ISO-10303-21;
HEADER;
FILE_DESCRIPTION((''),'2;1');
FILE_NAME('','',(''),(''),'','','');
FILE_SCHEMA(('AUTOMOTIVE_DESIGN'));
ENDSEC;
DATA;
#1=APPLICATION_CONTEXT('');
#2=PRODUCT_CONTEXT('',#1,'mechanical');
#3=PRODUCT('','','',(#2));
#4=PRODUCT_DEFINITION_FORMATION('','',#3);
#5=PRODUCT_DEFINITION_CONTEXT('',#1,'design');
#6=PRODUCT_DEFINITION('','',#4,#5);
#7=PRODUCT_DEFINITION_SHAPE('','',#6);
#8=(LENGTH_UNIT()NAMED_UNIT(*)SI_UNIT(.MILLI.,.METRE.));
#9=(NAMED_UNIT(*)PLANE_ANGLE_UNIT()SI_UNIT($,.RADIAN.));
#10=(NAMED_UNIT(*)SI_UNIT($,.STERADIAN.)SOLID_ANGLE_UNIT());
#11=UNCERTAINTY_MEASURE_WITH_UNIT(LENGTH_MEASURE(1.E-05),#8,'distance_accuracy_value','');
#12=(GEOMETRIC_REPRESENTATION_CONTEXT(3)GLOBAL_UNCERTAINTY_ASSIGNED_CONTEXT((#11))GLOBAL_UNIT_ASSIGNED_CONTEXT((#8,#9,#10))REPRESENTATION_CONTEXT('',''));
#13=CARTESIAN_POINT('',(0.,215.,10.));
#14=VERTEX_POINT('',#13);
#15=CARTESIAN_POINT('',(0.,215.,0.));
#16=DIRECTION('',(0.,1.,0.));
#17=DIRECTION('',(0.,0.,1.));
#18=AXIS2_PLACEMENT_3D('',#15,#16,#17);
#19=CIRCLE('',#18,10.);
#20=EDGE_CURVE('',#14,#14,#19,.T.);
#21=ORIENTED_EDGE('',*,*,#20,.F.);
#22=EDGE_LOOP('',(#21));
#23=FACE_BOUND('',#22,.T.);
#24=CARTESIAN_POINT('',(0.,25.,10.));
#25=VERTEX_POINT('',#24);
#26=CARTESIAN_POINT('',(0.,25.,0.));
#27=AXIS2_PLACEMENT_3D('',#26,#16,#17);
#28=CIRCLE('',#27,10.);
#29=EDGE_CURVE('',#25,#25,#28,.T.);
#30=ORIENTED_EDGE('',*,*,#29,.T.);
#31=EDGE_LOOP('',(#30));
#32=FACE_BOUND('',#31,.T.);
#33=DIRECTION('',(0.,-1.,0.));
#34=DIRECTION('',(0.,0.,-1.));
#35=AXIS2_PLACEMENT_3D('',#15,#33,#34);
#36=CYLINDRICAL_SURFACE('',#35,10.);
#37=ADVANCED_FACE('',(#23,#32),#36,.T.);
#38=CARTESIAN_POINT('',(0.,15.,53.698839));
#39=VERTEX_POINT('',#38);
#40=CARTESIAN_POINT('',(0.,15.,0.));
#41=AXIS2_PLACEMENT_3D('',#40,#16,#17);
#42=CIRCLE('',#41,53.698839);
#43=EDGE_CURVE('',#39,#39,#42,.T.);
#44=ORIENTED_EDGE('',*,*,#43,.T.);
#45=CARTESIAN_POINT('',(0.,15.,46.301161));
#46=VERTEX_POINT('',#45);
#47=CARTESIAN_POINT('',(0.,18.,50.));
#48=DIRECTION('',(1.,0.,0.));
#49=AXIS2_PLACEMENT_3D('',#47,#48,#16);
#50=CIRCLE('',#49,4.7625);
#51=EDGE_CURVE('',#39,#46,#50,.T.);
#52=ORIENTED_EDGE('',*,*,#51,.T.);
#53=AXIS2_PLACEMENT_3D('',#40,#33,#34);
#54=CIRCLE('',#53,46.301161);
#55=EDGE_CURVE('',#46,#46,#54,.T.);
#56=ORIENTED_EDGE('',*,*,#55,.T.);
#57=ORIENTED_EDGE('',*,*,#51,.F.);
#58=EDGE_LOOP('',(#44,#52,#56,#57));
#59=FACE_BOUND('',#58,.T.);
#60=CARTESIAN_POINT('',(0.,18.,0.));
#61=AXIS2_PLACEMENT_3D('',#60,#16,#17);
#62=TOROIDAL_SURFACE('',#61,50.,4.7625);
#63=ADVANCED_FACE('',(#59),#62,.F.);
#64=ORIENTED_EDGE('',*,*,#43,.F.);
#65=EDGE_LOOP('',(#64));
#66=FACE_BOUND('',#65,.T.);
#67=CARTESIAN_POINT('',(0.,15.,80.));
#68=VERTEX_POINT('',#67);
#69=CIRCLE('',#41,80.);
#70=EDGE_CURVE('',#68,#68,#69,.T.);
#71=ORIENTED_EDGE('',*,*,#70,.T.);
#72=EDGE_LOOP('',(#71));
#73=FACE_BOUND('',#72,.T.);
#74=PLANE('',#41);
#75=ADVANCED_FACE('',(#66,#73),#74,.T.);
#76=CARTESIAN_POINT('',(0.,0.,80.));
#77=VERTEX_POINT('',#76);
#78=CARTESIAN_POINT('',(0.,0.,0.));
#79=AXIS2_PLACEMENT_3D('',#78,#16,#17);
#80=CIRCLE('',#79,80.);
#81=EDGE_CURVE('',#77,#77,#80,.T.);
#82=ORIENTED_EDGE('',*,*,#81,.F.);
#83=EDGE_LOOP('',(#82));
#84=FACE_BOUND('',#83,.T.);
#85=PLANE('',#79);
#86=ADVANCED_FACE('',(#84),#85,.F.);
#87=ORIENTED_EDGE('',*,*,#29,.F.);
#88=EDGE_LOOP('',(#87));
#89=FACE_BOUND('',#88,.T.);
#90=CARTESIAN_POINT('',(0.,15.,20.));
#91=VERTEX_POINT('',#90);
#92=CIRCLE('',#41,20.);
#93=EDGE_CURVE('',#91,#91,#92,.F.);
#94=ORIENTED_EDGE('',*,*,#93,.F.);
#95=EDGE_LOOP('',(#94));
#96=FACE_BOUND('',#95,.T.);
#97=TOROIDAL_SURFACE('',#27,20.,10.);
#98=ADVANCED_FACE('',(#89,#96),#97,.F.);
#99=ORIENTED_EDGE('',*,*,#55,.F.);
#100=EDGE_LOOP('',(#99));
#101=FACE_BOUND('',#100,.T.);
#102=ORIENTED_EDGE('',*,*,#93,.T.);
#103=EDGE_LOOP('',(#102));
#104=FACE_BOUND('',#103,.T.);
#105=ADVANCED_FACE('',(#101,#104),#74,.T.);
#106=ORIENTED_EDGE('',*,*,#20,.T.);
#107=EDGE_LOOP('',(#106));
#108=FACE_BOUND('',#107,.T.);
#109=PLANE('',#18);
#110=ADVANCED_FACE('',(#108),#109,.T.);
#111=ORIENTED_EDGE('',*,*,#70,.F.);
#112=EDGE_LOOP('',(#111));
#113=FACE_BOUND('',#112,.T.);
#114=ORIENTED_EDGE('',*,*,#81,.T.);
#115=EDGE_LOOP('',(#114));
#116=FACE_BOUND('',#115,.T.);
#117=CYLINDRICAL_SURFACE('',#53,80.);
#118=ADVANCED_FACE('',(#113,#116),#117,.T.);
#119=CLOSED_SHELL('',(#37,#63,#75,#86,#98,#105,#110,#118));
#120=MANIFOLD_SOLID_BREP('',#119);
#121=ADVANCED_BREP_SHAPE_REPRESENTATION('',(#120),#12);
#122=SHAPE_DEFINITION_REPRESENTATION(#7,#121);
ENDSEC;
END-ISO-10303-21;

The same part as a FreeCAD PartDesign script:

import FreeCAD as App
import Part
import Sketcher
Q = App.Units.Quantity


def edges_at(feature, points):
    """Names of the edges that pass closest to the given points."""
    edges = feature.Shape.Edges
    near = lambda p: min(range(len(edges)), key=lambda i: edges[i].distToShape(Part.Vertex(*p))[0])
    return sorted({f"Edge{near(p) + 1}" for p in points})

doc = App.newDocument("Part")
params = doc.addObject("Spreadsheet::Sheet", "Params")
for row, (alias, value) in enumerate([
    ("sketch1_diameter", "160 mm"),
    ("pad1_length", "15 mm"),
    ("sketch2_diameter", "20 mm"),
    ("pad2_length", "200 mm"),
    ("fillet_radius", "10 mm"),
    ("sketch4_diameter", "100 mm"),
], start=1):
    params.set(f"A{row}", alias)
    params.set(f"B{row}", "=" + value)
    params.setAlias(f"B{row}", alias)

body = doc.addObject("PartDesign::Body", "Body")

sketch1 = doc.addObject("Sketcher::SketchObject", "Sketch")
body.addObject(sketch1)
sketch1.AttachmentSupport = (doc.XZ_Plane, [""])
sketch1.MapMode = "FlatFace"
sketch1.addGeometry(Part.Circle(App.Vector(0, 0, 0), App.Vector(0, 0, 1), 80), False)
sketch1.addConstraint([
    Sketcher.Constraint("Coincident", 0, 3, -1, 1),
    Sketcher.Constraint("Diameter", 0, Q("160 mm")),
])
sketch1.setExpression("Constraints[1]", "Params.sketch1_diameter")
pad1 = doc.addObject("PartDesign::Pad", "Pad")
body.addObject(pad1)
pad1.Profile = sketch1
pad1.setExpression("Length", "Params.pad1_length")
pad1.Reversed = True

sketch2 = doc.addObject("Sketcher::SketchObject", "Sketch001")
body.addObject(sketch2)
sketch2.AttachmentSupport = (doc.XZ_Plane, [""])
sketch2.MapMode = "FlatFace"
sketch2.AttachmentOffset = App.Placement(App.Vector(0, 0, -15), App.Rotation())
sketch2.addGeometry(Part.Circle(App.Vector(0, 0, 0), App.Vector(0, 0, 1), 10), False)
sketch2.addConstraint([
    Sketcher.Constraint("Coincident", 0, 3, -1, 1),
    Sketcher.Constraint("Diameter", 0, Q("20 mm")),
])
sketch2.setExpression("Constraints[1]", "Params.sketch2_diameter")
pad2 = doc.addObject("PartDesign::Pad", "Pad001")
body.addObject(pad2)
pad2.Profile = sketch2
pad2.setExpression("Length", "Params.pad2_length")
pad2.Reversed = True
doc.recompute()

fillet = doc.addObject("PartDesign::Fillet", "Fillet")
body.addObject(fillet)
fillet.Base = (pad2, edges_at(pad2, [(-10, 15, 0)]))
fillet.setExpression("Radius", "Params.fillet_radius")

sketch3 = doc.addObject("Sketcher::SketchObject", "Sketch002")
body.addObject(sketch3)
sketch3.AttachmentSupport = (doc.XY_Plane, [""])
sketch3.MapMode = "FlatFace"
sketch3.addGeometry(Part.Circle(App.Vector(50, 18, 0), App.Vector(0, 0, 1), 4.7625), False)
sketch3.addConstraint([
    Sketcher.Constraint("Diameter", 0, Q("9.525 mm")),
    Sketcher.Constraint("DistanceX", -1, 1, 0, 3, Q("50 mm")),
    Sketcher.Constraint("DistanceY", -1, 1, 0, 3, Q("18 mm")),
])

sketch4 = doc.addObject("Sketcher::SketchObject", "Sketch003")
body.addObject(sketch4)
sketch4.AttachmentSupport = (doc.XZ_Plane, [""])
sketch4.MapMode = "FlatFace"
sketch4.AttachmentOffset = App.Placement(App.Vector(0, 0, -18), App.Rotation())
sketch4.addGeometry(Part.Circle(App.Vector(0, 0, 0), App.Vector(0, 0, 1), 50), False)
sketch4.addConstraint([
    Sketcher.Constraint("Coincident", 0, 3, -1, 1),
    Sketcher.Constraint("Diameter", 0, Q("100 mm")),
])
sketch4.setExpression("Constraints[1]", "Params.sketch4_diameter")
doc.recompute()

subtractivepipe = doc.addObject("PartDesign::SubtractivePipe", "SubtractivePipe")
body.addObject(subtractivepipe)
subtractivepipe.Profile = sketch3
subtractivepipe.Spine = (sketch4, ["Edge1"])

doc.recompute()
